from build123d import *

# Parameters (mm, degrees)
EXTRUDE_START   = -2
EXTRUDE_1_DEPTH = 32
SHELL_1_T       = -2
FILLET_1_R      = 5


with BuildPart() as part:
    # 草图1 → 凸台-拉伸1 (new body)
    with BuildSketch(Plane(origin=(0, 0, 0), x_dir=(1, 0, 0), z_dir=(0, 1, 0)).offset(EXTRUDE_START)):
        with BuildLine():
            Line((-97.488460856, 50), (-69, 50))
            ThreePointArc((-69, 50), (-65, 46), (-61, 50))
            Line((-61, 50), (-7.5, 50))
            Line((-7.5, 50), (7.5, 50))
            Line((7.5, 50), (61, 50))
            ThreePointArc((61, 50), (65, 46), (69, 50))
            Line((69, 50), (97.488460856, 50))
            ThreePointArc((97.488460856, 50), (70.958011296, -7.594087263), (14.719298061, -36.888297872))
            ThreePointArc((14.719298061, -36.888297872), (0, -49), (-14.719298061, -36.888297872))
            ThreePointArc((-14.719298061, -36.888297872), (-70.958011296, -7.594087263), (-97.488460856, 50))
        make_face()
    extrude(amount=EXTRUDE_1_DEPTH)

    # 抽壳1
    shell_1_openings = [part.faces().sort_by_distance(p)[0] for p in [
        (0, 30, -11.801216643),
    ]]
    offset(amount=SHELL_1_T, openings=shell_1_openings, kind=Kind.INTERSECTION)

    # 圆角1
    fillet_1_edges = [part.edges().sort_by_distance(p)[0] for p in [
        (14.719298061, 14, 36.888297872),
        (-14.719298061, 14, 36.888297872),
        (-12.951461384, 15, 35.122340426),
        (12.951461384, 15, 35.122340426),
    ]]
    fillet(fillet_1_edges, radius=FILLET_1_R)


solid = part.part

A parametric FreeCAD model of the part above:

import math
import FreeCAD as App
import Part
import Sketcher
from FreeCAD import Vector


def edges_at(feature, points):
    """Names of the edges that pass closest to the given points."""
    edges = feature.Shape.Edges
    near = lambda p: min(range(len(edges)), key=lambda i: edges[i].distToShape(Part.Vertex(*p))[0])
    return sorted({f"Edge{near(p) + 1}" for p in points})


def faces_at(feature, points):
    """Names of the faces that lie closest to the given points."""
    faces = feature.Shape.Faces
    near = lambda p: min(range(len(faces)), key=lambda i: faces[i].distToShape(Part.Vertex(*p))[0])
    return sorted({f"Face{near(p) + 1}" for p in points})

doc = App.newDocument("Part")
body = doc.addObject("PartDesign::Body", "Body")

sketch1 = body.newObject("Sketcher::SketchObject", "Sketch")
sketch1.AttachmentSupport = (doc.getObject("XZ_Plane"), [""])
sketch1.MapMode = "FlatFace"
sketch1.AttachmentOffset = App.Placement(Vector(0, 0, 2), App.Rotation())
sketch1.addGeometry([
    Part.LineSegment(Vector(-69, -50, 0), Vector(-97.488461, -50, 0)),
    Part.ArcOfCircle(Part.Circle(Vector(0, -60, 0), Vector(0, 0, 1), 98), math.radians(98.638338), math.radians(174.143298)),
    Part.ArcOfCircle(Part.Circle(Vector(0, 34, 0), Vector(0, 0, 1), 15), math.radians(11.101823), math.radians(168.898177)),
    Part.ArcOfCircle(Part.Circle(Vector(0, -60, 0), Vector(0, 0, 1), 98), math.radians(5.856702), math.radians(81.361662)),
    Part.LineSegment(Vector(97.488461, -50, 0), Vector(69, -50, 0)),
    Part.ArcOfCircle(Part.Circle(Vector(65, -50, 0), Vector(0, 0, 1), 4), math.radians(0), math.radians(180)),
    Part.LineSegment(Vector(61, -50, 0), Vector(-61, -50, 0)),
    Part.ArcOfCircle(Part.Circle(Vector(-65, -50, 0), Vector(0, 0, 1), 4), math.radians(0), math.radians(180)),
], False)
sketch1.addConstraint([
    Sketcher.Constraint("Coincident", 0, 2, 1, 2),
    Sketcher.Constraint("Coincident", 1, 1, 2, 2),
    Sketcher.Constraint("Coincident", 2, 1, 3, 2),
    Sketcher.Constraint("Coincident", 3, 1, 4, 1),
    Sketcher.Constraint("Coincident", 4, 2, 5, 1),
    Sketcher.Constraint("Coincident", 5, 2, 6, 1),
    Sketcher.Constraint("Coincident", 6, 2, 7, 1),
    Sketcher.Constraint("Coincident", 7, 2, 0, 1),
    Sketcher.Constraint("Horizontal", 0),
    Sketcher.Constraint("Horizontal", 4),
    Sketcher.Constraint("Horizontal", 6),
    Sketcher.Constraint("Coincident", 3, 3, 1, 3),
    Sketcher.Constraint("Equal", 1, 3),
    Sketcher.Constraint("Equal", 5, 7),
    Sketcher.Constraint("Symmetric", 5, 3, 7, 3, -2),
    Sketcher.Constraint("Symmetric", 1, 1, 2, 1, -2),
    Sketcher.Constraint("Horizontal", 7, 3, 0, 2),
    Sketcher.Constraint("Horizontal", 0, 2, 3, 1),
    Sketcher.Constraint("Horizontal", 4, 2, 5, 2),
    Sketcher.Constraint("Radius", 1, 98.0),
    Sketcher.Constraint("Radius", 2, 15.0),
    Sketcher.Constraint("Radius", 5, 4.0),
    Sketcher.Constraint("DistanceX", 6, 2, 6, 1, 122.0),
    Sketcher.Constraint("DistanceY", 1, 3, -1, 1, 60.0),
    Sketcher.Constraint("DistanceY", -1, 1, 2, 3, 34.0),
    Sketcher.Constraint("DistanceY", 5, 3, -1, 1, 50.0),
])
pad1 = body.newObject("PartDesign::Pad", "Pad")
pad1.Profile = sketch1
pad1.Length = 32
pad1.Reversed = True
doc.recompute()

thickness = body.newObject("PartDesign::Thickness", "Thickness")
thickness.Base = (pad1, faces_at(pad1, [(0, 30, -0.5)]))
thickness.Value = 2
thickness.Reversed = True
thickness.Join = "Intersection"
doc.recompute()

fillet = body.newObject("PartDesign::Fillet", "Fillet")
fillet.Base = (thickness, edges_at(thickness, [
    (14.719, 14, 36.888),
    (-14.719, 14, 36.888),
    (-12.951, 15, 35.122),
    (12.951, 15, 35.122),
]))
fillet.Radius = 5

doc.recompute()
